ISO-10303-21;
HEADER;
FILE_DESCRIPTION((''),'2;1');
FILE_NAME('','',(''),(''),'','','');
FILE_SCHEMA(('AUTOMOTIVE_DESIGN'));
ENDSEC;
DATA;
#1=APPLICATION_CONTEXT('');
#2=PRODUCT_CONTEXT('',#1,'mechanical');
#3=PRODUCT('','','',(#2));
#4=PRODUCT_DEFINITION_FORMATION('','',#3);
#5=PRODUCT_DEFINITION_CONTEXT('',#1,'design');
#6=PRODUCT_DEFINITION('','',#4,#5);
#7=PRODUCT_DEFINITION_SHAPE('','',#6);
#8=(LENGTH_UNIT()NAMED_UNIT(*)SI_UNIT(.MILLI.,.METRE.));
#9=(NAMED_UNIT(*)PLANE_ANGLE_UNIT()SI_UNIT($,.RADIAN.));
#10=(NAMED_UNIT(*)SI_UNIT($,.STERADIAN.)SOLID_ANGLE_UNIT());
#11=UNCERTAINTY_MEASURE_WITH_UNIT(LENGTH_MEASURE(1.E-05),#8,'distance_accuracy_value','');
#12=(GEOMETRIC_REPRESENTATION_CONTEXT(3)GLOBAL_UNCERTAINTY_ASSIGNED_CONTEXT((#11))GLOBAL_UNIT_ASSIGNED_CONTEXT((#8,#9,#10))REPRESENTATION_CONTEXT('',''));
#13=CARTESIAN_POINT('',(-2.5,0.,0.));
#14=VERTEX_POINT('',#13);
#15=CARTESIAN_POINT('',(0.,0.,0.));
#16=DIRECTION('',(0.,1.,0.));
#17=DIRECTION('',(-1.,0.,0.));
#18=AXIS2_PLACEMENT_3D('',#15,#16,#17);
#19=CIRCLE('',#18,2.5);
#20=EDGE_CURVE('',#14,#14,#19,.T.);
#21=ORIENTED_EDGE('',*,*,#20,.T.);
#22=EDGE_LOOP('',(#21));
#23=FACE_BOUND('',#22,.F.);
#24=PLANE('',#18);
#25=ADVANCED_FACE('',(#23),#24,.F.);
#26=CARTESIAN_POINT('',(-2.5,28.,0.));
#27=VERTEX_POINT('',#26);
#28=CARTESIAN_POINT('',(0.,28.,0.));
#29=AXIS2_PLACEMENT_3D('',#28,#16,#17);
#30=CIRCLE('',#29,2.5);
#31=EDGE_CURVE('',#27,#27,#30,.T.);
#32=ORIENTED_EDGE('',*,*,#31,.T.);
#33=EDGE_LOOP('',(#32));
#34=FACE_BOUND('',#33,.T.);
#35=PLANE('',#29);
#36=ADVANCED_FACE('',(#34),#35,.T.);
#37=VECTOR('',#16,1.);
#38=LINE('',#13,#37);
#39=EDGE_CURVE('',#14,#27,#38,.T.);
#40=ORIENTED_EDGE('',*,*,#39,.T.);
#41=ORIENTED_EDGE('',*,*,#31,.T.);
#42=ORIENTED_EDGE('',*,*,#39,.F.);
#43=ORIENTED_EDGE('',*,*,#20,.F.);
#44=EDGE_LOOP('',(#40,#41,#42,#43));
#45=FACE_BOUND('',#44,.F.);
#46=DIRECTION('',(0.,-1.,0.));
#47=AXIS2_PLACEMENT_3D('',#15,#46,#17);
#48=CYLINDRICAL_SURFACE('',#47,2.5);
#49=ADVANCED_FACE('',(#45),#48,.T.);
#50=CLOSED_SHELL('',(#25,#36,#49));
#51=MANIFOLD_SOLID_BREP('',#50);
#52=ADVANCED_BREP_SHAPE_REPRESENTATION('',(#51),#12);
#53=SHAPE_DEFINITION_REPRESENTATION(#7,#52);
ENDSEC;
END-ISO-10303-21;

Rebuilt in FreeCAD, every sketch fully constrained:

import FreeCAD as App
import Part
import Sketcher

doc = App.newDocument("Part")
body = doc.addObject("PartDesign::Body", "Body")

# Sketch on XZ plane
sketch1 = body.newObject("Sketcher::SketchObject", "Sketch")
sketch1.AttachmentSupport = (doc.getObject("XZ_Plane"), [""])
sketch1.MapMode = "FlatFace"
sketch1.addGeometry(Part.Circle(App.Vector(0, 0, 0), App.Vector(0, 0, 1), 2.5), False)
sketch1.addConstraint(Sketcher.Constraint("Coincident", 0, 3, -1, 1))
sketch1.addConstraint(Sketcher.Constraint("Diameter", 0, 5.0))
pad1 = body.newObject("PartDesign::Pad", "Pad")
pad1.Profile = sketch1
pad1.Length = 28
pad1.Reversed = True

doc.recompute()
